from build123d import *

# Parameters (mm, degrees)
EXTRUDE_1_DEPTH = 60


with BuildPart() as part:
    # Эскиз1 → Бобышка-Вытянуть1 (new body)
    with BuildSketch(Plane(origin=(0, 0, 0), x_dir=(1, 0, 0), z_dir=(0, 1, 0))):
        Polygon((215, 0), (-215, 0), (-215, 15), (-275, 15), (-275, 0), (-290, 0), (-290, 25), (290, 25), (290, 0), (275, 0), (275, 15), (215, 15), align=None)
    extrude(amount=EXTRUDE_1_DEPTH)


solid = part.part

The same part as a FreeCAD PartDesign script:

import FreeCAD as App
import Part
import Sketcher
from FreeCAD import Vector
Q = App.Units.Quantity


def add_polygon(sketch, points):
    """Adds a closed chain of lines whose ends are joined by coincident constraints."""
    first, n = sketch.GeometryCount, len(points)
    for a, b in zip(points, points[1:] + points[:1]):
        sketch.addGeometry(Part.LineSegment(App.Vector(*a, 0), App.Vector(*b, 0)), False)
    for i in range(n):
        sketch.addConstraint(Sketcher.Constraint("Coincident", first + i, 2, first + (i + 1) % n, 1))

doc = App.newDocument("Part")
body = doc.addObject("PartDesign::Body", "Body")

# Sketch on XZ plane
sketch1 = body.newObject("Sketcher::SketchObject", "Sketch")
sketch1.AttachmentSupport = (doc.getObject("XZ_Plane"), [""])
sketch1.MapMode = "FlatFace"
add_polygon(sketch1, [(-215, 0), (215, 0), (215, -15), (275, -15), (275, 0), (290, 0), (290, -25), (-290, -25), (-290, 0), (-275, 0), (-275, -15), (-215, -15)])  # lines 0-11
sketch1.addConstraint([
    Sketcher.Constraint("Horizontal", 0),
    Sketcher.Constraint("Vertical", 1),
    Sketcher.Constraint("Horizontal", 2),
    Sketcher.Constraint("Vertical", 3),
    Sketcher.Constraint("Horizontal", 4),
    Sketcher.Constraint("Vertical", 5),
    Sketcher.Constraint("Horizontal", 6),
    Sketcher.Constraint("Vertical", 7),
    Sketcher.Constraint("Horizontal", 8),
    Sketcher.Constraint("Vertical", 9),
    Sketcher.Constraint("Horizontal", 10),
    Sketcher.Constraint("Vertical", 11),
    Sketcher.Constraint("Symmetric", 4, 2, 7, 2, -1, 1),
    Sketcher.Constraint("Symmetric", 0, 2, 11, 2, -1, 1),
    Sketcher.Constraint("Symmetric", 3, 2, 8, 2, -2),
    Sketcher.Constraint("Horizontal", 2, 2, 9, 2),
    Sketcher.Constraint("Equal", 8, 1),
    Sketcher.Constraint("DistanceX", 0, 1, 0, 2, Q("430 mm")),
    Sketcher.Constraint("DistanceX", 2, 1, 2, 2, Q("60 mm")),
    Sketcher.Constraint("DistanceX", 4, 1, 4, 2, Q("15 mm")),
    Sketcher.Constraint("DistanceY", 5, 2, 5, 1, Q("25 mm")),
])
pad1 = body.newObject("PartDesign::Pad", "Pad")
pad1.Profile = sketch1
pad1.Length = 60
pad1.Reversed = True

doc.recompute()
